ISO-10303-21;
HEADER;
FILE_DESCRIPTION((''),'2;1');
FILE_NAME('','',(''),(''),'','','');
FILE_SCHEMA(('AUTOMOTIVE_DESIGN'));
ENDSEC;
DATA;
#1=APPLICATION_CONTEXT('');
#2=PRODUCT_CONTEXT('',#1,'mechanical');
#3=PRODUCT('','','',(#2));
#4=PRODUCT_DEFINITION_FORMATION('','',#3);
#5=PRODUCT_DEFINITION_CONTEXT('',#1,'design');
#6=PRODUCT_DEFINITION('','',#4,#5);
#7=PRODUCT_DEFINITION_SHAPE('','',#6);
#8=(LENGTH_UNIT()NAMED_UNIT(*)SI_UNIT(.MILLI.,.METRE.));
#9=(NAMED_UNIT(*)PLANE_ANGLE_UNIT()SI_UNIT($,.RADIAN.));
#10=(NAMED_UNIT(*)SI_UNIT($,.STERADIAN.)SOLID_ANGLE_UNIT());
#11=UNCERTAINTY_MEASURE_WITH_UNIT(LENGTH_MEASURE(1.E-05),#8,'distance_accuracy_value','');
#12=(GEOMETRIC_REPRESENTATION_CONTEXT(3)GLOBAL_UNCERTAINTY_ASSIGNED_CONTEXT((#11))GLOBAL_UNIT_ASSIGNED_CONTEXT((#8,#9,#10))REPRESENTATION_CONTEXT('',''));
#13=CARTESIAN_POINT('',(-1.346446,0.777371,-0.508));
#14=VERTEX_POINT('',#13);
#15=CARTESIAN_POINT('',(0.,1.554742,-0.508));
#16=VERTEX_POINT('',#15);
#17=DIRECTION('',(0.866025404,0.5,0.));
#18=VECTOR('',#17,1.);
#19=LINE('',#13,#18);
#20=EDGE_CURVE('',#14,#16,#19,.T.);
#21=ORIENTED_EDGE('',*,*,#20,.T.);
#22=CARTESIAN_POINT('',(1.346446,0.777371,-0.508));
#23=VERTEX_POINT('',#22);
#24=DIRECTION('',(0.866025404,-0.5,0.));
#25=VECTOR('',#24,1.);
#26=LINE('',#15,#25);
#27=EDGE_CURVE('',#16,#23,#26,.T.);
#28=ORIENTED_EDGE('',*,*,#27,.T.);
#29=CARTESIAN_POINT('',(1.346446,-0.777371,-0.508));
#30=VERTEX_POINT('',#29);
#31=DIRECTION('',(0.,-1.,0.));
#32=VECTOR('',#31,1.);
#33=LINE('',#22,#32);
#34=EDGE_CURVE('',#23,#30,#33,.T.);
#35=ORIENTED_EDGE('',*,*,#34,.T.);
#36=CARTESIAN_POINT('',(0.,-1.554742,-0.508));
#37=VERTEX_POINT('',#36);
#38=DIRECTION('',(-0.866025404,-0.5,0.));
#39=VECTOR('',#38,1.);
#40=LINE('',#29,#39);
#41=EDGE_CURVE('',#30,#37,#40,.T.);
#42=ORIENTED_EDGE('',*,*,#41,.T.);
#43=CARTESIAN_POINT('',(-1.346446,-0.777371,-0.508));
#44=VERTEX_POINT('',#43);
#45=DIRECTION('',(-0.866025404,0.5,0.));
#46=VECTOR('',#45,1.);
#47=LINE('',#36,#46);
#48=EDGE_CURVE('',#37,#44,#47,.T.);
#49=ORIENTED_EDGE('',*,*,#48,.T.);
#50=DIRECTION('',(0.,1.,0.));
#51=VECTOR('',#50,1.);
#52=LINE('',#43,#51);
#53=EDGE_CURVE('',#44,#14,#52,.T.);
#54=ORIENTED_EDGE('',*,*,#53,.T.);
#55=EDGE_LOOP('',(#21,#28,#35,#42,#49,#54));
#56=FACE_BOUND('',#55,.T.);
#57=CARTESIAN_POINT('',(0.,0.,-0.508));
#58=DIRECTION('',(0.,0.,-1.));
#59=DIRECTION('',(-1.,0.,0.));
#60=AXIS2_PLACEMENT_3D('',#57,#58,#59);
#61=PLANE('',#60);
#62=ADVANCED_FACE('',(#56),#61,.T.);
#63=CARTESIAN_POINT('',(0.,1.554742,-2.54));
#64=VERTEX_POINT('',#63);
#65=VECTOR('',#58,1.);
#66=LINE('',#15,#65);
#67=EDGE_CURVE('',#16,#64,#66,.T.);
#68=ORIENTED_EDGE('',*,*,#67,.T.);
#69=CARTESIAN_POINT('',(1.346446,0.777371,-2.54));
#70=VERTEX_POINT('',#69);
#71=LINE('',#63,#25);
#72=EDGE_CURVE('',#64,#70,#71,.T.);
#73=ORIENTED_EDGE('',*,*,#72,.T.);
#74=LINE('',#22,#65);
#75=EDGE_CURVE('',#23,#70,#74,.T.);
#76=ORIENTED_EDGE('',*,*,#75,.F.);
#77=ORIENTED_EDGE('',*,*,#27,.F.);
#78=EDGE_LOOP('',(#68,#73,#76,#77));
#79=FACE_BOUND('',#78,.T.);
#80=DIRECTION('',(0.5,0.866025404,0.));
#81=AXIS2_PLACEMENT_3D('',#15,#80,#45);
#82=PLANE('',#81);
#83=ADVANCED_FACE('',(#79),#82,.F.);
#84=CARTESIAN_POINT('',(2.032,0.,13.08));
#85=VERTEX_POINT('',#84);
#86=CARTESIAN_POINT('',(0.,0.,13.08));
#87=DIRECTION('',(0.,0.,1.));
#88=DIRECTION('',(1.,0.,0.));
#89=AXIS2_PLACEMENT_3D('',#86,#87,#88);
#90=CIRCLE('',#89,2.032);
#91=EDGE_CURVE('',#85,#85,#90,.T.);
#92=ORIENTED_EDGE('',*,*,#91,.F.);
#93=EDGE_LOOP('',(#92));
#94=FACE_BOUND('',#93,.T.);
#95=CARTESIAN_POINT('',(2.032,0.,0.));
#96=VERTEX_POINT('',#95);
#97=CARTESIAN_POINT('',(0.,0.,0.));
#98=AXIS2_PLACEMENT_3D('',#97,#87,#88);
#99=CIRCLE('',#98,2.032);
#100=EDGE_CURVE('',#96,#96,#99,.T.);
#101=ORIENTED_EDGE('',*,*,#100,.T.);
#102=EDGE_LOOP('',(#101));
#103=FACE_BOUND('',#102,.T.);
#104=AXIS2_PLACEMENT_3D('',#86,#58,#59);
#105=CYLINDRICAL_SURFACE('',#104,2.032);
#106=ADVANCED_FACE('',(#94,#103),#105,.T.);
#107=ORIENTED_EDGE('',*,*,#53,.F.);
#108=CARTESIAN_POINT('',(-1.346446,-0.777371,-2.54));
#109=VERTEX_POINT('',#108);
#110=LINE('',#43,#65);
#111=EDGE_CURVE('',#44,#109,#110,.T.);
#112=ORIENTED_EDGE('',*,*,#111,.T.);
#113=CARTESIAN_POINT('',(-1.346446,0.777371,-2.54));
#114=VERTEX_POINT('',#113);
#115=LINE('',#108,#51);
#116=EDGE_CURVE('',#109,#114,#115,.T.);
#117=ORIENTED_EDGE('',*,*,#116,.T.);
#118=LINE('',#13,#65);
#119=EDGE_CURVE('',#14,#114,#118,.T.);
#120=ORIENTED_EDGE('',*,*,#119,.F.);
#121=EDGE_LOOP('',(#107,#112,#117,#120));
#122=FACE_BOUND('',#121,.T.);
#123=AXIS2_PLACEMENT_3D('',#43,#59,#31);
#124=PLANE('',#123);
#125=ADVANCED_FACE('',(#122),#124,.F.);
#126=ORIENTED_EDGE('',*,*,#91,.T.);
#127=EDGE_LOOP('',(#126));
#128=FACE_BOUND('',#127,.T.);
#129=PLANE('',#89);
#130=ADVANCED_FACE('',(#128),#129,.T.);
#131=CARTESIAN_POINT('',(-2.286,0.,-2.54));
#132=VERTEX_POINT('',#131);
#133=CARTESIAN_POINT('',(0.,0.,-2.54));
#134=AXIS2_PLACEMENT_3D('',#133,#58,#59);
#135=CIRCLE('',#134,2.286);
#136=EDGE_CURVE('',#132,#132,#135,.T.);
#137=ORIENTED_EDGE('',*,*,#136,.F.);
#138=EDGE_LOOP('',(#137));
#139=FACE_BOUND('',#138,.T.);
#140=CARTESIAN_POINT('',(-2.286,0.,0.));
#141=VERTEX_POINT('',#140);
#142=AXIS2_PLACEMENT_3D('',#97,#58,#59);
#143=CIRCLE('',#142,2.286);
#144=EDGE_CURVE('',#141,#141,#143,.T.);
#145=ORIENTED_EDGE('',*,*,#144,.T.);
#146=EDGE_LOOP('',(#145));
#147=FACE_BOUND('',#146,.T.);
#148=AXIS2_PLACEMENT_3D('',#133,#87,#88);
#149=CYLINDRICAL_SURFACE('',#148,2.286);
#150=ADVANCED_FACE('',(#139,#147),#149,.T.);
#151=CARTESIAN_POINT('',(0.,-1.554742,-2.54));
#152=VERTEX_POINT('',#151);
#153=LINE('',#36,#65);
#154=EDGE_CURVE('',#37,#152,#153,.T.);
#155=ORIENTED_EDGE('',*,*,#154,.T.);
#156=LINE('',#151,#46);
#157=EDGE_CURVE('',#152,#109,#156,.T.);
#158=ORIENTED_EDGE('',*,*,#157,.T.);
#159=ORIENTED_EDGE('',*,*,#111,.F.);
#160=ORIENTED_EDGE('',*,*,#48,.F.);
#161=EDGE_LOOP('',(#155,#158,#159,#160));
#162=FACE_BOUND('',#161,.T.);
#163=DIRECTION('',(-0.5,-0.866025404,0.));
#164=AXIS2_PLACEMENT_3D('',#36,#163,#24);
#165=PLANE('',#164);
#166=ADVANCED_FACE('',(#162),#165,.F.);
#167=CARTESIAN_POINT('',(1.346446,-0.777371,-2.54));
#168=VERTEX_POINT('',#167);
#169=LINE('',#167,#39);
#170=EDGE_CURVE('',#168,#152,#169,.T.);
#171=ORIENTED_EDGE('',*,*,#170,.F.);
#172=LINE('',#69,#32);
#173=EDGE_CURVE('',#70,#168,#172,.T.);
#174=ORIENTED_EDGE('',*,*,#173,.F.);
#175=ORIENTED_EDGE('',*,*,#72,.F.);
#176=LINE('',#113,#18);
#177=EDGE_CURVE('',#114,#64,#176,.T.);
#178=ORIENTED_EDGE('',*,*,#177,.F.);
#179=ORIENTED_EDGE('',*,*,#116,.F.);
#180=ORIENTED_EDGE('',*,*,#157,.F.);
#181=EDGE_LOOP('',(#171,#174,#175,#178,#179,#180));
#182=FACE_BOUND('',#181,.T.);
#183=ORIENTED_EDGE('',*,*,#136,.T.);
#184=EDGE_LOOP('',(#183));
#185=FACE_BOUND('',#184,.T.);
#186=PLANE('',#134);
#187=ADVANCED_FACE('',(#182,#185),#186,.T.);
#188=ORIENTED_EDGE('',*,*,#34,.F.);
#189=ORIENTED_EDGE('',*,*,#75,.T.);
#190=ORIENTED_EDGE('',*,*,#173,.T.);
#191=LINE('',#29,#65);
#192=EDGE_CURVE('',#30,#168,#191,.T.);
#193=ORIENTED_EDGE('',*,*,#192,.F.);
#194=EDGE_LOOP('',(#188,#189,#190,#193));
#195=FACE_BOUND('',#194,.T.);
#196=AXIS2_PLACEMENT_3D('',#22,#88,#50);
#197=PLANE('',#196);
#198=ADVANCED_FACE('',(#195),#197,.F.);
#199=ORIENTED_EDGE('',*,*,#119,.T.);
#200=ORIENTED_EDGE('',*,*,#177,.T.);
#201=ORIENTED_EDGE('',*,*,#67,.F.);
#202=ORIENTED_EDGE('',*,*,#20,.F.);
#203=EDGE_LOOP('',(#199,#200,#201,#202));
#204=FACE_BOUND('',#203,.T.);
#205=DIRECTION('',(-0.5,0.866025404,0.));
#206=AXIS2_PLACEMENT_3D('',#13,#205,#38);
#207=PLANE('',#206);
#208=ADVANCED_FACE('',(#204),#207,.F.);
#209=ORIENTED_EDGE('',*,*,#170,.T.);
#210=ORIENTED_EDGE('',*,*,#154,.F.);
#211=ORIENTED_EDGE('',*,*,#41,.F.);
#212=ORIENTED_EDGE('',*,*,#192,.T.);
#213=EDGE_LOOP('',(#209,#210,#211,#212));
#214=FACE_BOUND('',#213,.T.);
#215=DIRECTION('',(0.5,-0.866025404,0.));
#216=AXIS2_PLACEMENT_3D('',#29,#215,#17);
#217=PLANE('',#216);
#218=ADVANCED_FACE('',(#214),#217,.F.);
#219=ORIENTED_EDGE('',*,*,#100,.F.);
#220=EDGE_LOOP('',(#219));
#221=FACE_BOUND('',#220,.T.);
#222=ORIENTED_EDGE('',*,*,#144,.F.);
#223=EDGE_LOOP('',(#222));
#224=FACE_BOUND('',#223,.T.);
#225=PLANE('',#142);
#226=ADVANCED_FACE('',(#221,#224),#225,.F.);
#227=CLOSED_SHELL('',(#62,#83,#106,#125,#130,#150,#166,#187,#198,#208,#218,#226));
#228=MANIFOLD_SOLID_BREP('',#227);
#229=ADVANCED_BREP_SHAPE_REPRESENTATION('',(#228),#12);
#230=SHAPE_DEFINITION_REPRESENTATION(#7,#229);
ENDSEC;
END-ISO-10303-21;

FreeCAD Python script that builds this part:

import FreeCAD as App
import Part
import Sketcher
from FreeCAD import Vector
Q = App.Units.Quantity

doc = App.newDocument("Part")
body = doc.addObject("PartDesign::Body", "Body")

# Sketch on XY plane
sketch1 = body.newObject("Sketcher::SketchObject", "Sketch")
sketch1.AttachmentSupport = (doc.getObject("XY_Plane"), [""])
sketch1.MapMode = "FlatFace"
sketch1.addGeometry(Part.Circle(Vector(0, 0, 0), Vector(0, 0, 1), 2.032), False)
sketch1.addConstraint([
    Sketcher.Constraint("Coincident", 0, 3, -1, 1),
    Sketcher.Constraint("Diameter", 0, Q("0.16 in")),
])
pad1 = body.newObject("PartDesign::Pad", "Pad")
pad1.Profile = sketch1
pad1.Length = 13.08

# Sketch on XY plane
sketch2 = body.newObject("Sketcher::SketchObject", "Sketch001")
sketch2.AttachmentSupport = (doc.getObject("XY_Plane"), [""])
sketch2.MapMode = "FlatFace"
sketch2.addGeometry(Part.Circle(Vector(0, 0, 0), Vector(0, 0, 1), 2.286), False)
sketch2.addConstraint([
    Sketcher.Constraint("Coincident", 0, 3, -1, 1),
    Sketcher.Constraint("Diameter", 0, Q("0.18 in")),
])
pad2 = body.newObject("PartDesign::Pad", "Pad001")
pad2.Profile = sketch2
pad2.Length = Q("0.1 in")
pad2.Reversed = True

# Sketch on XY plane
sketch3 = body.newObject("Sketcher::SketchObject", "Sketch002")
sketch3.AttachmentSupport = (doc.getObject("XY_Plane"), [""])
sketch3.MapMode = "FlatFace"
sketch3.AttachmentOffset = App.Placement(Vector(0, 0, -0.1 * 25.4), App.Rotation())
sketch3.addGeometry([
    Part.LineSegment(Vector(0, -1.554742, 0), Vector(-1.346446, -0.777371, 0)),  # 0
    Part.LineSegment(Vector(-1.346446, -0.777371, 0), Vector(-1.346446, 0.777371, 0)),  # 1
    Part.LineSegment(Vector(-1.346446, 0.777371, 0), Vector(0, 1.554742, 0)),  # 2
    Part.LineSegment(Vector(0, 1.554742, 0), Vector(1.346446, 0.777371, 0)),  # 3
    Part.LineSegment(Vector(1.346446, 0.777371, 0), Vector(1.346446, -0.777371, 0)),  # 4
    Part.LineSegment(Vector(1.346446, -0.777371, 0), Vector(0, -1.554742, 0)),  # 5
], False)
sketch3.addConstraint([
    Sketcher.Constraint("Coincident", 0, 2, 1, 1),
    Sketcher.Constraint("Coincident", 1, 2, 2, 1),
    Sketcher.Constraint("Coincident", 2, 2, 3, 1),
    Sketcher.Constraint("Coincident", 3, 2, 4, 1),
    Sketcher.Constraint("Coincident", 4, 2, 5, 1),
    Sketcher.Constraint("Coincident", 5, 2, 0, 1),
    Sketcher.Constraint("Vertical", 1),
    Sketcher.Constraint("Vertical", 4),
    Sketcher.Constraint("Symmetric", 0, 2, 3, 2, -1, 1),
    Sketcher.Constraint("Symmetric", 2, 2, 5, 2, -1, 1),
    Sketcher.Constraint("PointOnObject", 2, 2, -2),
    Sketcher.Constraint("Parallel", 2, 5),
    Sketcher.Constraint("Horizontal", 1, 2, 3, 2),
    Sketcher.Constraint("Angle", 0, Q("150 deg")),
    Sketcher.Constraint("DistanceY", 1, 1, 1, 2, 1.554742),
    Sketcher.Constraint("DistanceY", 1, 2, 2, 2, 0.777371),
])
pocket1 = body.newObject("PartDesign::Pocket", "Pocket")
pocket1.Profile = sketch3
pocket1.Length = Q("0.08 in")
pocket1.Reversed = True

doc.recompute()
